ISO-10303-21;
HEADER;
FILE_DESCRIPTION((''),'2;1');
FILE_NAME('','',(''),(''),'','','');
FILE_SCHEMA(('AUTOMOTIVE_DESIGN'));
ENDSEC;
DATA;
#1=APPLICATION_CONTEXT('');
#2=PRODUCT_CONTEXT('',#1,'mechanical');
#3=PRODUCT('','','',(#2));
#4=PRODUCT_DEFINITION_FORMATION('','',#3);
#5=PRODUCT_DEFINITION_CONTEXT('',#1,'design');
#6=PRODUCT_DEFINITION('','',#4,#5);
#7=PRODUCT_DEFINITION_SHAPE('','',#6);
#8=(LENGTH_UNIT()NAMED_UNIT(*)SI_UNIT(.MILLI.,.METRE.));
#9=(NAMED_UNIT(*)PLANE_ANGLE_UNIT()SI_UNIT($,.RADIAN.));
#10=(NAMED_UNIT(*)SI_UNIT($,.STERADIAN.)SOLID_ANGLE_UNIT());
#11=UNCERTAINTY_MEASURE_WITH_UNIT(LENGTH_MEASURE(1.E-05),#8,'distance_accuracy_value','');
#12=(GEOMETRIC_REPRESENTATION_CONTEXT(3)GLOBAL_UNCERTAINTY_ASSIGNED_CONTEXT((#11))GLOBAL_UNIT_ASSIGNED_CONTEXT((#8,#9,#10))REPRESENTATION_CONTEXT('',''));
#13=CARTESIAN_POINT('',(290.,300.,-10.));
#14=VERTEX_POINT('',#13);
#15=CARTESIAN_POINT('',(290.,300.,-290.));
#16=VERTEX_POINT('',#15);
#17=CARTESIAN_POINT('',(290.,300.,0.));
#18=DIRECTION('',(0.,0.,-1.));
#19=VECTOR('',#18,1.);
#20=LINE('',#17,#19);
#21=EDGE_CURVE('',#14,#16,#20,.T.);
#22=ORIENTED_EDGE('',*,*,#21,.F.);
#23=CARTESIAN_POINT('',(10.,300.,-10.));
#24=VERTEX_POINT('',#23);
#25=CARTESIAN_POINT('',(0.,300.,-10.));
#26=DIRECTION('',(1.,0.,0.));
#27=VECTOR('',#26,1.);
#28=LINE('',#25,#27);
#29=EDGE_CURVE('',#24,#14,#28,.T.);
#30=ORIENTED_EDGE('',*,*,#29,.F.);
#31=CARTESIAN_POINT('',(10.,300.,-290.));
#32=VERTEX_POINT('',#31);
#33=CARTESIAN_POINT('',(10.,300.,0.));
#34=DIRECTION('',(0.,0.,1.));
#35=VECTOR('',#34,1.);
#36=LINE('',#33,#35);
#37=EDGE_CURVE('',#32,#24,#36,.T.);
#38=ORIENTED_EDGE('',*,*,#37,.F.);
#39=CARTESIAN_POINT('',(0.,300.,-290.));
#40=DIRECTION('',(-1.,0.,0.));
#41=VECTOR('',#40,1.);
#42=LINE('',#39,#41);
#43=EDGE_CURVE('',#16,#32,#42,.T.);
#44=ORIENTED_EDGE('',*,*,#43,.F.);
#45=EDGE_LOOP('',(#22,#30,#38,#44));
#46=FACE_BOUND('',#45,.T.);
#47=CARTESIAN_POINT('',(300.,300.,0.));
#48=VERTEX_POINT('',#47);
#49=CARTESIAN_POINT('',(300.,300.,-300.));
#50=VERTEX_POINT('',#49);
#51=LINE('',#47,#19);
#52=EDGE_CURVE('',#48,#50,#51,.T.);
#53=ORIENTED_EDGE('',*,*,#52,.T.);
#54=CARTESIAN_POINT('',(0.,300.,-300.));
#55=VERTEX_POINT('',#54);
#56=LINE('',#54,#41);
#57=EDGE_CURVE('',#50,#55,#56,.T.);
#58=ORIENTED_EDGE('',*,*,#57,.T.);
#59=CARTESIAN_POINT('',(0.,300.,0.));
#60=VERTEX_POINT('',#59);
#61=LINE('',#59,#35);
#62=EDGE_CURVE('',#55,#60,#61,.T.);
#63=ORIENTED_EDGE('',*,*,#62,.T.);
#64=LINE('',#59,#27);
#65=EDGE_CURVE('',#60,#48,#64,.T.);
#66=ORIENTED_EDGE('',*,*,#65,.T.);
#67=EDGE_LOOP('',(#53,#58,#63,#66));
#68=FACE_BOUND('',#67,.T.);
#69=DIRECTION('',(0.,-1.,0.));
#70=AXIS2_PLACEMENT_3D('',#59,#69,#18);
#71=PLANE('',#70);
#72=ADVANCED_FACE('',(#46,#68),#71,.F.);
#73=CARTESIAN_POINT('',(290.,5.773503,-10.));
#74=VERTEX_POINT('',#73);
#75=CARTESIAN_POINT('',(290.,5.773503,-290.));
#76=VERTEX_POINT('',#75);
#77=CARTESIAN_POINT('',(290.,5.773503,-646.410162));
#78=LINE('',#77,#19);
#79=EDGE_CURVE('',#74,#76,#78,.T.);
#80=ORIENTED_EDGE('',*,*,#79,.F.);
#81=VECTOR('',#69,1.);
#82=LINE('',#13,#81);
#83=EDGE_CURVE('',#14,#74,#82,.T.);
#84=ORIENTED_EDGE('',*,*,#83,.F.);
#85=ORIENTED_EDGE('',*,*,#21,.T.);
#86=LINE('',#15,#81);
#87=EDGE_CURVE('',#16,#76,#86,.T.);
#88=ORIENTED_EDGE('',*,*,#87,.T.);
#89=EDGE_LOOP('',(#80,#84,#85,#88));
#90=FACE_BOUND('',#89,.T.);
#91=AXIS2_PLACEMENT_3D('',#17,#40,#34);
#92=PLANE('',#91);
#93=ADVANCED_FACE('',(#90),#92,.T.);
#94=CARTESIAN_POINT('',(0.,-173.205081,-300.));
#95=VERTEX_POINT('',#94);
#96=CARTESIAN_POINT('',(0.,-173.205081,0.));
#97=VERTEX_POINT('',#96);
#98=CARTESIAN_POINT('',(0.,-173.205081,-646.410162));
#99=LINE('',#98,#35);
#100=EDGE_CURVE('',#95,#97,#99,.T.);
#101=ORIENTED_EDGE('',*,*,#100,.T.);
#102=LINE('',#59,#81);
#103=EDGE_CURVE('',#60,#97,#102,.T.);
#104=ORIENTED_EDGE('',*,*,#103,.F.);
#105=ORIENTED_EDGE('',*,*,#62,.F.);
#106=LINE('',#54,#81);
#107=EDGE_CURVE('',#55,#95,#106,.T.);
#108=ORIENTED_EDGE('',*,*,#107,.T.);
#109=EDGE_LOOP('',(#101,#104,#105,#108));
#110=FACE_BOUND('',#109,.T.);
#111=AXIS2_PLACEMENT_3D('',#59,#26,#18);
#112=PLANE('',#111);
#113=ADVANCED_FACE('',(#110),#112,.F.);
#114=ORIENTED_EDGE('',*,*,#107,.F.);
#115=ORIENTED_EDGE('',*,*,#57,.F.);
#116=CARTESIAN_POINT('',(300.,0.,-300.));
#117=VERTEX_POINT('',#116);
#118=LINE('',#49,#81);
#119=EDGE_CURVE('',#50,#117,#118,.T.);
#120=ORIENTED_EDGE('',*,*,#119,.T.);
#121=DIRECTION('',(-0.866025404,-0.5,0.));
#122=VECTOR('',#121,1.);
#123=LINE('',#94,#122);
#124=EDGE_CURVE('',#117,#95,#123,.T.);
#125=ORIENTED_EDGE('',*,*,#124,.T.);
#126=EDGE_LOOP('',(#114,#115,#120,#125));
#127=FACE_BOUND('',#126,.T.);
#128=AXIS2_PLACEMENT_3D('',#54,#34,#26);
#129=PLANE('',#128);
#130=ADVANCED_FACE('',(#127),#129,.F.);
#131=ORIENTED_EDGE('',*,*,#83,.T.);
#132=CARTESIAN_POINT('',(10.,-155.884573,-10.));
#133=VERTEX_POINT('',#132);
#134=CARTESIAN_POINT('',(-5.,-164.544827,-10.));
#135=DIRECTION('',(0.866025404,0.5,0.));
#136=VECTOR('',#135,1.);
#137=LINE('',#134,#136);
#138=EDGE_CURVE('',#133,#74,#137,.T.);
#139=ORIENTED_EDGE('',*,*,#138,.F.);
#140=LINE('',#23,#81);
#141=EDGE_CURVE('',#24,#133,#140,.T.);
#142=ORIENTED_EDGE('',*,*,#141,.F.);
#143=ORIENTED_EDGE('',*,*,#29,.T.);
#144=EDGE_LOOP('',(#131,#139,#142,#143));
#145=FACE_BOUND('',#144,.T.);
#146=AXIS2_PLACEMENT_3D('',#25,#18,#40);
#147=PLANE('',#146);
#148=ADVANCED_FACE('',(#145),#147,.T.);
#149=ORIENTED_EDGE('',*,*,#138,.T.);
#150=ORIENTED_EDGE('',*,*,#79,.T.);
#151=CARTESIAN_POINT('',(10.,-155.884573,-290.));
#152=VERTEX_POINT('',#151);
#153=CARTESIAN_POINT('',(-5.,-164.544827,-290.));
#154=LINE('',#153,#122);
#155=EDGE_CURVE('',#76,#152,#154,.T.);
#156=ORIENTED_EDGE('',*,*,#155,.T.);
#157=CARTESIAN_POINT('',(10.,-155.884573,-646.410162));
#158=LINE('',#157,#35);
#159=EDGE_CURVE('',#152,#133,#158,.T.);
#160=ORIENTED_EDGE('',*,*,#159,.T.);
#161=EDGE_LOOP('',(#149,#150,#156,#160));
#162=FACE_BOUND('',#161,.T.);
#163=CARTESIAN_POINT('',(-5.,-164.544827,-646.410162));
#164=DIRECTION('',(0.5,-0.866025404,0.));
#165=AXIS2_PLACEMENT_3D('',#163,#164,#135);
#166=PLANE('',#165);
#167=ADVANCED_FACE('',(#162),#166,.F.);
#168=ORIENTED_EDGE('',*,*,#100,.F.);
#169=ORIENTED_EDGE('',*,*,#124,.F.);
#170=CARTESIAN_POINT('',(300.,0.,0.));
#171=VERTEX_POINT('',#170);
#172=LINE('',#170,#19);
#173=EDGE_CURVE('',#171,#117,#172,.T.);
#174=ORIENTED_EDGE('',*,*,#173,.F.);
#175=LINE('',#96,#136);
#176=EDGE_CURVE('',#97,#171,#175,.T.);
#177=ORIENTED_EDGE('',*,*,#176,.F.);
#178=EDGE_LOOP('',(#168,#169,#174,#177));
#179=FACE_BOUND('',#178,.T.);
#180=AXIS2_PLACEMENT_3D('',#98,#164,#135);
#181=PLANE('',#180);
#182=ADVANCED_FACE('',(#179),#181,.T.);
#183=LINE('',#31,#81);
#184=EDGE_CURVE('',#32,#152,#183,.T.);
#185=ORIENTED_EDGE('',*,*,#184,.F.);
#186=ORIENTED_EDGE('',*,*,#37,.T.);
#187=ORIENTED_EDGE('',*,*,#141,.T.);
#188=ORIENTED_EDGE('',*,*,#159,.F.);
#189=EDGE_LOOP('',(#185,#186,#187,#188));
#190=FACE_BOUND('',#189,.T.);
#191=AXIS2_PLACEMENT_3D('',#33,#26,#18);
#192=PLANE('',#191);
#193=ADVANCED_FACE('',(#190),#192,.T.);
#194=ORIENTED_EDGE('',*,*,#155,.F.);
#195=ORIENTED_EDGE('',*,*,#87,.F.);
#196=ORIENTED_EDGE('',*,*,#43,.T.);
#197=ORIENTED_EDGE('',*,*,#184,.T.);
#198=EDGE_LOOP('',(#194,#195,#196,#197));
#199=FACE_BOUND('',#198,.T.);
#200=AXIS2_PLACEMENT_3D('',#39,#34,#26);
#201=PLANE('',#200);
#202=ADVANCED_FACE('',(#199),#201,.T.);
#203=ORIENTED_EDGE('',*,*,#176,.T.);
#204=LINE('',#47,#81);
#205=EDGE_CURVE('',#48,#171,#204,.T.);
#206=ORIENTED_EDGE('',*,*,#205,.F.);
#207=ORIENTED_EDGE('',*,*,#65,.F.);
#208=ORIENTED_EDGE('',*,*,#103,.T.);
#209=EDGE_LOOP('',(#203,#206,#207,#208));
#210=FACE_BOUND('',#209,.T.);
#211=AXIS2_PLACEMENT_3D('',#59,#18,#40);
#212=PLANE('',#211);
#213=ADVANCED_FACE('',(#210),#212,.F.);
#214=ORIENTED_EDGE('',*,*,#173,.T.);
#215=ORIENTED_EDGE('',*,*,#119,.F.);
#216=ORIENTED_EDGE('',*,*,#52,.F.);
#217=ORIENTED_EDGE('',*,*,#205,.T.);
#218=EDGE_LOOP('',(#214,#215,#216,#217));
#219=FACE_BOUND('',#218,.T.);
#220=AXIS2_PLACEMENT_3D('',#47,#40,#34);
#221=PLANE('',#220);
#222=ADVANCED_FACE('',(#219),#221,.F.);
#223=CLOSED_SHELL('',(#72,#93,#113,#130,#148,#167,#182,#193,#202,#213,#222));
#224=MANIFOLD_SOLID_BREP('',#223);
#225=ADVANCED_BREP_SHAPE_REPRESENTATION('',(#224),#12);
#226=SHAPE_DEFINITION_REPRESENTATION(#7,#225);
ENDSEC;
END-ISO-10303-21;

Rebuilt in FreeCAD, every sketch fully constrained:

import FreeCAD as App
import Part
import Sketcher
Q = App.Units.Quantity


def faces_at(feature, points):
    """Names of the faces that lie closest to the given points."""
    faces = feature.Shape.Faces
    near = lambda p: min(range(len(faces)), key=lambda i: faces[i].distToShape(Part.Vertex(*p))[0])
    return sorted({f"Face{near(p) + 1}" for p in points})


def add_polygon(sketch, points):
    """Adds a closed chain of lines whose ends are joined by coincident constraints."""
    first, n = sketch.GeometryCount, len(points)
    for a, b in zip(points, points[1:] + points[:1]):
        sketch.addGeometry(Part.LineSegment(App.Vector(*a, 0), App.Vector(*b, 0)), False)
    for i in range(n):
        sketch.addConstraint(Sketcher.Constraint("Coincident", first + i, 2, first + (i + 1) % n, 1))

doc = App.newDocument("Part")
body = doc.addObject("PartDesign::Body", "Body")

sketch1 = doc.addObject("Sketcher::SketchObject", "Sketch")
body.addObject(sketch1)
sketch1.AttachmentSupport = (doc.XZ_Plane, [""])
sketch1.MapMode = "FlatFace"
add_polygon(sketch1, [(0, -300), (0, 0), (300, 0), (300, -300)])
sketch1.addConstraint([
    Sketcher.Constraint("Vertical", 0),
    Sketcher.Constraint("Horizontal", 1),
    Sketcher.Constraint("Vertical", 2),
    Sketcher.Constraint("Horizontal", 3),
    Sketcher.Constraint("Coincident", 0, 2, -1, 1),
    Sketcher.Constraint("Equal", 3, 0),
    Sketcher.Constraint("DistanceX", 1, 1, 1, 2, Q("300 mm")),
])
pad1 = doc.addObject("PartDesign::Pad", "Pad")
body.addObject(pad1)
pad1.Profile = sketch1
pad1.Length = 300
pad1.Reversed = True

sketch2 = doc.addObject("Sketcher::SketchObject", "Sketch001")
body.addObject(sketch2)
sketch2.AttachmentSupport = (doc.XY_Plane, [""])
sketch2.MapMode = "FlatFace"
add_polygon(sketch2, [(0, 0), (0, -173), (300, 0)])
sketch2.addConstraint([
    Sketcher.Constraint("Vertical", 0),
    Sketcher.Constraint("Horizontal", 2),
    Sketcher.Constraint("Coincident", 2, 2, -1, 1),
    Sketcher.Constraint("DistanceX", 2, 2, 2, 1, Q("300 mm")),
    Sketcher.Constraint("Angle", 1, Q("30 deg")),
])
pad2 = doc.addObject("PartDesign::Pad", "Pad001")
body.addObject(pad2)
pad2.Profile = sketch2
pad2.Length = 300
pad2.Reversed = True
doc.recompute()

thickness = doc.addObject("PartDesign::Thickness", "Thickness")
body.addObject(thickness)
thickness.Base = (pad2, faces_at(pad2, [(150, 300, -150)]))
thickness.Value = 10
thickness.Reversed = True
thickness.Join = "Intersection"

doc.recompute()
